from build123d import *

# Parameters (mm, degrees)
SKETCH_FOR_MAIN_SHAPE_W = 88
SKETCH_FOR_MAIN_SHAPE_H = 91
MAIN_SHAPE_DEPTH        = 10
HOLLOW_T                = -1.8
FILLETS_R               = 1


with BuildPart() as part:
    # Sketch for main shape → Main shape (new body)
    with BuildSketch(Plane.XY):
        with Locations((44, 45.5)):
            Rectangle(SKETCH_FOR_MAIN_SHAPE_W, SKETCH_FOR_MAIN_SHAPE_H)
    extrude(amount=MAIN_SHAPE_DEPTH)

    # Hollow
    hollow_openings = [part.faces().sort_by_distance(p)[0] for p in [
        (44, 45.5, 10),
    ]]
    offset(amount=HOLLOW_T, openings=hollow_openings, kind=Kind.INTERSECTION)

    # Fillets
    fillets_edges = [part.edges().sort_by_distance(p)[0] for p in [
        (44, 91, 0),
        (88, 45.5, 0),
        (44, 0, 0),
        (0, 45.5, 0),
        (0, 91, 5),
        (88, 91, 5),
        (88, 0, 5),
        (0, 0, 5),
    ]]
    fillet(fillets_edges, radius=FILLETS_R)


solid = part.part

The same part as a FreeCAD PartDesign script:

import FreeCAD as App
import Part
import Sketcher
from FreeCAD import Vector
Q = App.Units.Quantity


def edges_at(feature, points):
    """Names of the edges that pass closest to the given points."""
    edges = feature.Shape.Edges
    near = lambda p: min(range(len(edges)), key=lambda i: edges[i].distToShape(Part.Vertex(*p))[0])
    return sorted({f"Edge{near(p) + 1}" for p in points})


def faces_at(feature, points):
    """Names of the faces that lie closest to the given points."""
    faces = feature.Shape.Faces
    near = lambda p: min(range(len(faces)), key=lambda i: faces[i].distToShape(Part.Vertex(*p))[0])
    return sorted({f"Face{near(p) + 1}" for p in points})

doc = App.newDocument("Part")
body = doc.addObject("PartDesign::Body", "Body")

# Sketch on XY plane
sketch1 = body.newObject("Sketcher::SketchObject", "Sketch")
sketch1.AttachmentSupport = (doc.getObject("XY_Plane"), [""])
sketch1.MapMode = "FlatFace"
sketch1.addGeometry(Part.LineSegment(Vector(0, 91, 0), Vector(0, 0, 0)), False)
sketch1.addGeometry(Part.LineSegment(Vector(0, 0, 0), Vector(88, 0, 0)), False)
sketch1.addGeometry(Part.LineSegment(Vector(88, 0, 0), Vector(88, 91, 0)), False)
sketch1.addGeometry(Part.LineSegment(Vector(88, 91, 0), Vector(0, 91, 0)), False)
sketch1.addConstraint(Sketcher.Constraint("Coincident", 0, 2, 1, 1))
sketch1.addConstraint(Sketcher.Constraint("Coincident", 1, 2, 2, 1))
sketch1.addConstraint(Sketcher.Constraint("Coincident", 2, 2, 3, 1))
sketch1.addConstraint(Sketcher.Constraint("Coincident", 3, 2, 0, 1))
sketch1.addConstraint(Sketcher.Constraint("Vertical", 0))
sketch1.addConstraint(Sketcher.Constraint("Horizontal", 1))
sketch1.addConstraint(Sketcher.Constraint("Vertical", 2))
sketch1.addConstraint(Sketcher.Constraint("Horizontal", 3))
sketch1.addConstraint(Sketcher.Constraint("Coincident", 0, 2, -1, 1))
sketch1.addConstraint(Sketcher.Constraint("DistanceX", 1, 1, 1, 2, Q("88 mm")))
sketch1.addConstraint(Sketcher.Constraint("DistanceY", 0, 2, 0, 1, Q("91 mm")))
pad1 = body.newObject("PartDesign::Pad", "Pad")
pad1.Profile = sketch1
pad1.Length = 10
doc.recompute()

thickness = body.newObject("PartDesign::Thickness", "Thickness")
thickness.Base = (pad1, faces_at(pad1, [(44, 45.5, 10)]))
thickness.Value = 1.8
thickness.Reversed = True
thickness.Join = "Intersection"
doc.recompute()

fillet = body.newObject("PartDesign::Fillet", "Fillet")
fillet.Base = (thickness, edges_at(thickness, [
    (44, 91, 0),
    (88, 45.5, 0),
    (44, 0, 0),
    (0, 45.5, 0),
    (0, 91, 5),
    (88, 91, 5),
    (88, 0, 5),
    (0, 0, 5),
]))
fillet.Radius = 1

doc.recompute()
